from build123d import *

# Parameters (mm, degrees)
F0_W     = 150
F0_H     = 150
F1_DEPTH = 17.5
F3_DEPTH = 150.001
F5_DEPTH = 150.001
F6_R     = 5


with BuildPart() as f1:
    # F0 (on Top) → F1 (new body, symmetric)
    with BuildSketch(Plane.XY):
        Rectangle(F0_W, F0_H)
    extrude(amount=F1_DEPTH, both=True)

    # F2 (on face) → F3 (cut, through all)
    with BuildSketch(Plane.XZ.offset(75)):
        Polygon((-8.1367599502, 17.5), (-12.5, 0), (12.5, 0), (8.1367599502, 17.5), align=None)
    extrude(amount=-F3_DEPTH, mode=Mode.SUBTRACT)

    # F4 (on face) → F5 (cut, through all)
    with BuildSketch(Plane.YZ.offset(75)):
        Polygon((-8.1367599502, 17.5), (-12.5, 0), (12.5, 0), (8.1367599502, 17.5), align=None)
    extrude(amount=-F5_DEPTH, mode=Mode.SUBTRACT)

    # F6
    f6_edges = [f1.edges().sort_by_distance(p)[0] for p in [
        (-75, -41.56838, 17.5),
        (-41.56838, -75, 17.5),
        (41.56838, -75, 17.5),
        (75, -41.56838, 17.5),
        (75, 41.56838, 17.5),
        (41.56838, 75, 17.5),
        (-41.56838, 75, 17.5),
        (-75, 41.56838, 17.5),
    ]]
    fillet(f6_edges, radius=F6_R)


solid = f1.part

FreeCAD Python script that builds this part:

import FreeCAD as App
import Part
import Sketcher

V = App.Vector
Q = App.Units.Quantity


def edges_at(feature, points):
    """Names of the edges that pass closest to the given points."""
    edges = feature.Shape.Edges
    near = lambda p: min(range(len(edges)), key=lambda i: edges[i].distToShape(Part.Vertex(*p))[0])
    return sorted({f"Edge{near(p) + 1}" for p in points})

doc = App.newDocument("Part")
params = doc.addObject("Spreadsheet::Sheet", "Params")
for row, (alias, value) in enumerate([
    ("sketch1_width", "150 mm"),
    ("pad1_length", "35 mm"),
    ("sketch2_width", "25 mm"),
    ("sketch3_width", "25 mm"),
    ("fillet_radius", "5 mm"),
], start=1):
    params.set(f"A{row}", alias)
    params.set(f"B{row}", "=" + value)
    params.setAlias(f"B{row}", alias)

body = doc.addObject("PartDesign::Body", "Body")

# Sketch on XY plane
sketch1 = body.newObject("Sketcher::SketchObject", "Sketch")
sketch1.AttachmentSupport = (doc.getObject("XY_Plane"), [""])
sketch1.MapMode = "FlatFace"
sketch1.addGeometry([
    Part.LineSegment(V(-75, 75, 0), V(-75, -75, 0)),
    Part.LineSegment(V(-75, -75, 0), V(75, -75, 0)),
    Part.LineSegment(V(75, -75, 0), V(75, 75, 0)),
    Part.LineSegment(V(75, 75, 0), V(-75, 75, 0)),
], False)
sketch1.addConstraint([
    Sketcher.Constraint("Coincident", 0, 2, 1, 1),
    Sketcher.Constraint("Coincident", 1, 2, 2, 1),
    Sketcher.Constraint("Coincident", 2, 2, 3, 1),
    Sketcher.Constraint("Coincident", 3, 2, 0, 1),
    Sketcher.Constraint("Vertical", 0),
    Sketcher.Constraint("Horizontal", 1),
    Sketcher.Constraint("Vertical", 2),
    Sketcher.Constraint("Horizontal", 3),
    Sketcher.Constraint("Symmetric", 0, 2, 2, 2, -1, 1),
    Sketcher.Constraint("Equal", 3, 0),
    Sketcher.Constraint("DistanceX", 1, 1, 1, 2, Q("150 mm")),
])
sketch1.setExpression("Constraints[10]", "Params.sketch1_width")
pad1 = body.newObject("PartDesign::Pad", "Pad")
pad1.Profile = sketch1
pad1.setExpression("Length", "Params.pad1_length")
pad1.Midplane = True

# Sketch on XZ plane
sketch2 = body.newObject("Sketcher::SketchObject", "Sketch001")
sketch2.AttachmentSupport = (doc.getObject("XZ_Plane"), [""])
sketch2.MapMode = "FlatFace"
sketch2.AttachmentOffset = App.Placement(V(0, 0, 75), App.Rotation())
sketch2.addGeometry([
    Part.LineSegment(V(-8, 18, 0), V(-12, 0, 0)),
    Part.LineSegment(V(-12, 0, 0), V(12, 0, 0)),
    Part.LineSegment(V(12, 0, 0), V(8, 18, 0)),
    Part.LineSegment(V(8, 18, 0), V(-8, 18, 0)),
], False)
sketch2.addConstraint([
    Sketcher.Constraint("Coincident", 0, 2, 1, 1),
    Sketcher.Constraint("Coincident", 1, 2, 2, 1),
    Sketcher.Constraint("Coincident", 2, 2, 3, 1),
    Sketcher.Constraint("Coincident", 3, 2, 0, 1),
    Sketcher.Constraint("Horizontal", 1),
    Sketcher.Constraint("Horizontal", 3),
    Sketcher.Constraint("Symmetric", 0, 2, 1, 2, -1, 1),
    Sketcher.Constraint("Equal", 0, 2),
    Sketcher.Constraint("DistanceX", 1, 1, 1, 2, Q("25 mm")),
    Sketcher.Constraint("Angle", 0, Q("-104 deg")),
    Sketcher.Constraint("DistanceY", -1, 1, 2, 2, Q("17.5 mm")),
])
sketch2.setExpression("Constraints[8]", "Params.sketch2_width")
pocket1 = body.newObject("PartDesign::Pocket", "Pocket")
pocket1.Profile = sketch2
pocket1.Type = "ThroughAll"

# Sketch on YZ plane
sketch3 = body.newObject("Sketcher::SketchObject", "Sketch002")
sketch3.AttachmentSupport = (doc.getObject("YZ_Plane"), [""])
sketch3.MapMode = "FlatFace"
sketch3.AttachmentOffset = App.Placement(V(0, 0, 75), App.Rotation())
sketch3.addGeometry([
    Part.LineSegment(V(-8, 18, 0), V(-12, 0, 0)),
    Part.LineSegment(V(-12, 0, 0), V(12, 0, 0)),
    Part.LineSegment(V(12, 0, 0), V(8, 18, 0)),
    Part.LineSegment(V(8, 18, 0), V(-8, 18, 0)),
], False)
sketch3.addConstraint([
    Sketcher.Constraint("Coincident", 0, 2, 1, 1),
    Sketcher.Constraint("Coincident", 1, 2, 2, 1),
    Sketcher.Constraint("Coincident", 2, 2, 3, 1),
    Sketcher.Constraint("Coincident", 3, 2, 0, 1),
    Sketcher.Constraint("Horizontal", 1),
    Sketcher.Constraint("Horizontal", 3),
    Sketcher.Constraint("Symmetric", 0, 2, 1, 2, -1, 1),
    Sketcher.Constraint("Equal", 0, 2),
    Sketcher.Constraint("DistanceX", 1, 1, 1, 2, Q("25 mm")),
    Sketcher.Constraint("Angle", 0, Q("-104 deg")),
    Sketcher.Constraint("DistanceY", -1, 1, 2, 2, Q("17.5 mm")),
])
sketch3.setExpression("Constraints[8]", "Params.sketch3_width")
pocket2 = body.newObject("PartDesign::Pocket", "Pocket001")
pocket2.Profile = sketch3
pocket2.Type = "ThroughAll"
doc.recompute()

fillet = body.newObject("PartDesign::Fillet", "Fillet")
fillet.Base = (pocket2, edges_at(pocket2, [
    (-75, -41.568, 17.5),
    (-41.568, -75, 17.5),
    (41.568, -75, 17.5),
    (75, -41.568, 17.5),
    (75, 41.568, 17.5),
    (41.568, 75, 17.5),
    (-41.568, 75, 17.5),
    (-75, 41.568, 17.5),
]))
fillet.setExpression("Radius", "Params.fillet_radius")

doc.recompute()
